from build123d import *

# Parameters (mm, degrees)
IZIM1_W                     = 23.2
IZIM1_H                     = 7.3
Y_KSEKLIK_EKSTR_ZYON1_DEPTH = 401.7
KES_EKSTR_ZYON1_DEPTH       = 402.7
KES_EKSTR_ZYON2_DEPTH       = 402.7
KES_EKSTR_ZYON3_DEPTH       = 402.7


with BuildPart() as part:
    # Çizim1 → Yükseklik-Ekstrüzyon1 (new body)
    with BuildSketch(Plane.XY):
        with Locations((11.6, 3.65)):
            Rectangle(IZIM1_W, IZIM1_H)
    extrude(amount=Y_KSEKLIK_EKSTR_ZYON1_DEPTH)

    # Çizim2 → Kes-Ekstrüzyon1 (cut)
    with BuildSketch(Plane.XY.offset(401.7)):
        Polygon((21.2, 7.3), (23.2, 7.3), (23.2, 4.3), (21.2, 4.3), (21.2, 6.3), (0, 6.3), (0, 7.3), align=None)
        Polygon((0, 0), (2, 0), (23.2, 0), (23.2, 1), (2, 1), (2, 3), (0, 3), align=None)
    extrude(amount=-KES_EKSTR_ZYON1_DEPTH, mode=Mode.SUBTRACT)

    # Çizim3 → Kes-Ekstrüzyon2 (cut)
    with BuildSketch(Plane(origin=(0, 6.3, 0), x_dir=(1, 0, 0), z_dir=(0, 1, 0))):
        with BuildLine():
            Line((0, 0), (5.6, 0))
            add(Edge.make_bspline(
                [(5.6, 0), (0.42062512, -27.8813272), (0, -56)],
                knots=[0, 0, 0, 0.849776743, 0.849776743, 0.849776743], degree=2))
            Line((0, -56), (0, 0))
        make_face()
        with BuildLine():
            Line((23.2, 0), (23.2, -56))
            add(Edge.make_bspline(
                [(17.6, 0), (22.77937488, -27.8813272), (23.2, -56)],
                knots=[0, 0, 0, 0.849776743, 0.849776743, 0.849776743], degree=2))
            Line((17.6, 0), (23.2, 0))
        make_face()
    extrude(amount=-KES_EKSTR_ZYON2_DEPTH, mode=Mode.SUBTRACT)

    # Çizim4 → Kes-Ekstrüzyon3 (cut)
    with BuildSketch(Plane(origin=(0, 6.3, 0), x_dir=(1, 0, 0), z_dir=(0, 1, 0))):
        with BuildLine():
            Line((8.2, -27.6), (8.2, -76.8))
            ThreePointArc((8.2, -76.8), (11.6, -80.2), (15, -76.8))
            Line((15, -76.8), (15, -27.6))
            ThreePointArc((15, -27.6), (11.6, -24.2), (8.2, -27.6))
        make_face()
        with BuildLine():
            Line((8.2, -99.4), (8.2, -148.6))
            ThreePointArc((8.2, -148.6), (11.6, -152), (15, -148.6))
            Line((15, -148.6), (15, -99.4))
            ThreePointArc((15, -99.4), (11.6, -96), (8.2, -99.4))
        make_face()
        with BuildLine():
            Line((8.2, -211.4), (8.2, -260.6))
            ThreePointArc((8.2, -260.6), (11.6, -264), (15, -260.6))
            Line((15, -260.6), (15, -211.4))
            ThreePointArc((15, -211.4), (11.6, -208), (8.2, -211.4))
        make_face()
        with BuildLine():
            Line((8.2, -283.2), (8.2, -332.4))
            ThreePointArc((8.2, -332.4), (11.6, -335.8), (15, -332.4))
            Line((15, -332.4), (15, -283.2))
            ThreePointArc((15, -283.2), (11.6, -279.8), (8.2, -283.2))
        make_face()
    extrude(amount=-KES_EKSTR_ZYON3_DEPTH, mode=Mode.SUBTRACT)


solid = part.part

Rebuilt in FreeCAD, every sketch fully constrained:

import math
import FreeCAD as App
import Part
import Sketcher
from FreeCAD import Vector

doc = App.newDocument("Part")
body = doc.addObject("PartDesign::Body", "Body")

# Sketch on XY plane
sketch1 = body.newObject("Sketcher::SketchObject", "Sketch")
sketch1.AttachmentSupport = (doc.getObject("XY_Plane"), [""])
sketch1.MapMode = "FlatFace"
sketch1.addGeometry([
    Part.LineSegment(Vector(0, 7.3, 0), Vector(0, 0, 0)),
    Part.LineSegment(Vector(0, 0, 0), Vector(23.2, 0, 0)),
    Part.LineSegment(Vector(23.2, 0, 0), Vector(23.2, 7.3, 0)),
    Part.LineSegment(Vector(23.2, 7.3, 0), Vector(0, 7.3, 0)),
], False)
sketch1.addConstraint([
    Sketcher.Constraint("Coincident", 0, 2, 1, 1),
    Sketcher.Constraint("Coincident", 1, 2, 2, 1),
    Sketcher.Constraint("Coincident", 2, 2, 3, 1),
    Sketcher.Constraint("Coincident", 3, 2, 0, 1),
    Sketcher.Constraint("Vertical", 0),
    Sketcher.Constraint("Horizontal", 1),
    Sketcher.Constraint("Vertical", 2),
    Sketcher.Constraint("Horizontal", 3),
    Sketcher.Constraint("Coincident", 0, 2, -1, 1),
    Sketcher.Constraint("DistanceX", 1, 1, 1, 2, 23.2),
    Sketcher.Constraint("DistanceY", 0, 2, 0, 1, 7.3),
])
pad1 = body.newObject("PartDesign::Pad", "Pad")
pad1.Profile = sketch1
pad1.Length = 401.7

# Sketch on XY plane
sketch2 = body.newObject("Sketcher::SketchObject", "Sketch001")
sketch2.AttachmentSupport = (doc.getObject("XY_Plane"), [""])
sketch2.MapMode = "FlatFace"
sketch2.AttachmentOffset = App.Placement(Vector(0, 0, 401.7), App.Rotation())
sketch2.addGeometry([
    Part.LineSegment(Vector(23.2, 7.3, 0), Vector(0, 7.3, 0)),  # 0
    Part.LineSegment(Vector(0, 7.3, 0), Vector(0, 6.3, 0)),  # 1
    Part.LineSegment(Vector(0, 6.3, 0), Vector(21.2, 6.3, 0)),  # 2
    Part.LineSegment(Vector(21.2, 6.3, 0), Vector(21.2, 4.3, 0)),  # 3
    Part.LineSegment(Vector(21.2, 4.3, 0), Vector(23.2, 4.3, 0)),  # 4
    Part.LineSegment(Vector(23.2, 4.3, 0), Vector(23.2, 7.3, 0)),  # 5
    Part.LineSegment(Vector(0, 0, 0), Vector(23.2, 0, 0)),  # 6
    Part.LineSegment(Vector(23.2, 0, 0), Vector(23.2, 1, 0)),  # 7
    Part.LineSegment(Vector(23.2, 1, 0), Vector(2, 1, 0)),  # 8
    Part.LineSegment(Vector(2, 1, 0), Vector(2, 3, 0)),  # 9
    Part.LineSegment(Vector(2, 3, 0), Vector(0, 3, 0)),  # 10
    Part.LineSegment(Vector(0, 3, 0), Vector(0, 0, 0)),  # 11
], False)
sketch2.addConstraint([
    Sketcher.Constraint("Coincident", 0, 2, 1, 1),
    Sketcher.Constraint("Coincident", 1, 2, 2, 1),
    Sketcher.Constraint("Coincident", 2, 2, 3, 1),
    Sketcher.Constraint("Coincident", 3, 2, 4, 1),
    Sketcher.Constraint("Coincident", 4, 2, 5, 1),
    Sketcher.Constraint("Coincident", 5, 2, 0, 1),
    Sketcher.Constraint("Coincident", 6, 2, 7, 1),
    Sketcher.Constraint("Coincident", 7, 2, 8, 1),
    Sketcher.Constraint("Coincident", 8, 2, 9, 1),
    Sketcher.Constraint("Coincident", 9, 2, 10, 1),
    Sketcher.Constraint("Coincident", 10, 2, 11, 1),
    Sketcher.Constraint("Coincident", 11, 2, 6, 1),
    Sketcher.Constraint("Horizontal", 0),
    Sketcher.Constraint("Vertical", 1),
    Sketcher.Constraint("Horizontal", 2),
    Sketcher.Constraint("Vertical", 3),
    Sketcher.Constraint("Horizontal", 4),
    Sketcher.Constraint("Vertical", 5),
    Sketcher.Constraint("Horizontal", 6),
    Sketcher.Constraint("Vertical", 7),
    Sketcher.Constraint("Horizontal", 8),
    Sketcher.Constraint("Vertical", 9),
    Sketcher.Constraint("Horizontal", 10),
    Sketcher.Constraint("Vertical", 11),
    Sketcher.Constraint("Coincident", 11, 2, -1, 1),
    Sketcher.Constraint("PointOnObject", 0, 2, -2),
    Sketcher.Constraint("Vertical", 5, 2, 6, 2),
    Sketcher.Constraint("Equal", 2, 8),
    Sketcher.Constraint("Equal", 10, 3),
    Sketcher.Constraint("Equal", 1, 7),
    Sketcher.Constraint("Equal", 3, 9),
    Sketcher.Constraint("DistanceX", 4, 1, 4, 2, 2.0),
    Sketcher.Constraint("DistanceY", 1, 2, 1, 1, 1.0),
    Sketcher.Constraint("DistanceX", 0, 2, 0, 1, 23.2),
    Sketcher.Constraint("DistanceY", -1, 1, 0, 2, 7.3),
])
pocket1 = body.newObject("PartDesign::Pocket", "Pocket")
pocket1.Profile = sketch2
pocket1.Length = 402.7

# Sketch on XZ plane
sketch3 = body.newObject("Sketcher::SketchObject", "Sketch002")
sketch3.AttachmentSupport = (doc.getObject("XZ_Plane"), [""])
sketch3.MapMode = "FlatFace"
sketch3.AttachmentOffset = App.Placement(Vector(0, 0, -6.3), App.Rotation())
sketch3.addGeometry([
    Part.LineSegment(Vector(5.6, 0, 0), Vector(0, 0, 0)),  # 0
    Part.LineSegment(Vector(0, 0, 0), Vector(0, 56, 0)),  # 1
    Part.BSplineCurve([Vector(5.6, 0, 0), Vector(0.420625, 27.881327, 0), Vector(0, 56, 0)], [3, 3], [0, 0.849776743], False, 2, [1, 1, 1], False),  # 2
    Part.LineSegment(Vector(23.2, 56, 0), Vector(23.2, 0, 0)),  # 3
    Part.LineSegment(Vector(23.2, 0, 0), Vector(17.6, 0, 0)),  # 4
    Part.BSplineCurve([Vector(17.6, 0, 0), Vector(22.779375, 27.881327, 0), Vector(23.2, 56, 0)], [3, 3], [0, 0.849776743], False, 2, [1, 1, 1], False),  # 5
], False)
sketch3.addConstraint([
    Sketcher.Constraint("Block", 2),
    Sketcher.Constraint("Block", 5),
    Sketcher.Constraint("Coincident", 0, 2, 1, 1),
    Sketcher.Constraint("Coincident", 1, 2, 2, 2),
    Sketcher.Constraint("Coincident", 2, 1, 0, 1),
    Sketcher.Constraint("Coincident", 3, 2, 4, 1),
    Sketcher.Constraint("Coincident", 4, 2, 5, 1),
    Sketcher.Constraint("Coincident", 5, 2, 3, 1),
    Sketcher.Constraint("Horizontal", 0),
    Sketcher.Constraint("Vertical", 1),
    Sketcher.Constraint("Vertical", 3),
    Sketcher.Constraint("Horizontal", 4),
])
pocket2 = body.newObject("PartDesign::Pocket", "Pocket001")
pocket2.Profile = sketch3
pocket2.Length = 402.7
pocket2.Reversed = True

# Sketch on XZ plane
sketch4 = body.newObject("Sketcher::SketchObject", "Sketch003")
sketch4.AttachmentSupport = (doc.getObject("XZ_Plane"), [""])
sketch4.MapMode = "FlatFace"
sketch4.AttachmentOffset = App.Placement(Vector(0, 0, -6.3), App.Rotation())
sketch4.addGeometry([
    Part.LineSegment(Vector(8.2, 27.6, 0), Vector(8.2, 76.8, 0)),  # 0
    Part.ArcOfCircle(Part.Circle(Vector(11.6, 76.8, 0), Vector(0, 0, 1), 3.4), math.radians(0), math.radians(180)),  # 1
    Part.LineSegment(Vector(15, 76.8, 0), Vector(15, 27.6, 0)),  # 2
    Part.ArcOfCircle(Part.Circle(Vector(11.6, 27.6, 0), Vector(0, 0, 1), 3.4), math.radians(180), math.radians(360)),  # 3
    Part.LineSegment(Vector(8.2, 99.4, 0), Vector(8.2, 148.6, 0)),  # 4
    Part.ArcOfCircle(Part.Circle(Vector(11.6, 148.6, 0), Vector(0, 0, 1), 3.4), math.radians(0), math.radians(180)),  # 5
    Part.LineSegment(Vector(15, 148.6, 0), Vector(15, 99.4, 0)),  # 6
    Part.ArcOfCircle(Part.Circle(Vector(11.6, 99.4, 0), Vector(0, 0, 1), 3.4), math.radians(180), math.radians(360)),  # 7
    Part.LineSegment(Vector(8.2, 211.4, 0), Vector(8.2, 260.6, 0)),  # 8
    Part.ArcOfCircle(Part.Circle(Vector(11.6, 260.6, 0), Vector(0, 0, 1), 3.4), math.radians(0), math.radians(180)),  # 9
    Part.LineSegment(Vector(15, 260.6, 0), Vector(15, 211.4, 0)),  # 10
    Part.ArcOfCircle(Part.Circle(Vector(11.6, 211.4, 0), Vector(0, 0, 1), 3.4), math.radians(180), math.radians(360)),  # 11
    Part.LineSegment(Vector(8.2, 283.2, 0), Vector(8.2, 332.4, 0)),  # 12
    Part.ArcOfCircle(Part.Circle(Vector(11.6, 332.4, 0), Vector(0, 0, 1), 3.4), math.radians(0), math.radians(180)),  # 13
    Part.LineSegment(Vector(15, 332.4, 0), Vector(15, 283.2, 0)),  # 14
    Part.ArcOfCircle(Part.Circle(Vector(11.6, 283.2, 0), Vector(0, 0, 1), 3.4), math.radians(180), math.radians(360)),  # 15
], False)
sketch4.addConstraint([
    Sketcher.Constraint("Tangent", 0, 2, 1, 2),
    Sketcher.Constraint("Tangent", 1, 1, 2, 1),
    Sketcher.Constraint("Tangent", 2, 2, 3, 2),
    Sketcher.Constraint("Tangent", 3, 1, 0, 1),
    Sketcher.Constraint("Tangent", 4, 2, 5, 2),
    Sketcher.Constraint("Tangent", 5, 1, 6, 1),
    Sketcher.Constraint("Tangent", 6, 2, 7, 2),
    Sketcher.Constraint("Tangent", 7, 1, 4, 1),
    Sketcher.Constraint("Tangent", 8, 2, 9, 2),
    Sketcher.Constraint("Tangent", 9, 1, 10, 1),
    Sketcher.Constraint("Tangent", 10, 2, 11, 2),
    Sketcher.Constraint("Tangent", 11, 1, 8, 1),
    Sketcher.Constraint("Tangent", 12, 2, 13, 2),
    Sketcher.Constraint("Tangent", 13, 1, 14, 1),
    Sketcher.Constraint("Tangent", 14, 2, 15, 2),
    Sketcher.Constraint("Tangent", 15, 1, 12, 1),
    Sketcher.Constraint("Vertical", 0),
    Sketcher.Constraint("Vertical", 2),
    Sketcher.Constraint("Vertical", 4),
    Sketcher.Constraint("Vertical", 6),
    Sketcher.Constraint("Vertical", 8),
    Sketcher.Constraint("Vertical", 10),
    Sketcher.Constraint("Vertical", 12),
    Sketcher.Constraint("Vertical", 14),
    Sketcher.Constraint("Equal", 3, 5),
    Sketcher.Constraint("Equal", 7, 9),
    Sketcher.Constraint("Equal", 11, 13),
    Sketcher.Constraint("Vertical", 3, 3, 5, 3),
    Sketcher.Constraint("Vertical", 7, 3, 9, 3),
    Sketcher.Constraint("Vertical", 11, 3, 13, 3),
    Sketcher.Constraint("Equal", 2, 4),
    Sketcher.Constraint("Equal", 6, 8),
    Sketcher.Constraint("Equal", 10, 12),
    Sketcher.Constraint("Radius", 1, 3.4),
    Sketcher.Constraint("DistanceY", 0, 1, 0, 2, 49.2),
    Sketcher.Constraint("DistanceX", -1, 1, 1, 1, 15.0),
    Sketcher.Constraint("DistanceY", 3, 3, 5, 3, 121.0),
    Sketcher.Constraint("DistanceY", 5, 3, 9, 3, 112.0),
    Sketcher.Constraint("DistanceY", 11, 3, 13, 3, 121.0),
    Sketcher.Constraint("DistanceY", -1, 1, 1, 3, 76.8),
])
pocket3 = body.newObject("PartDesign::Pocket", "Pocket002")
pocket3.Profile = sketch4
pocket3.Length = 402.7
pocket3.Reversed = True

doc.recompute()
